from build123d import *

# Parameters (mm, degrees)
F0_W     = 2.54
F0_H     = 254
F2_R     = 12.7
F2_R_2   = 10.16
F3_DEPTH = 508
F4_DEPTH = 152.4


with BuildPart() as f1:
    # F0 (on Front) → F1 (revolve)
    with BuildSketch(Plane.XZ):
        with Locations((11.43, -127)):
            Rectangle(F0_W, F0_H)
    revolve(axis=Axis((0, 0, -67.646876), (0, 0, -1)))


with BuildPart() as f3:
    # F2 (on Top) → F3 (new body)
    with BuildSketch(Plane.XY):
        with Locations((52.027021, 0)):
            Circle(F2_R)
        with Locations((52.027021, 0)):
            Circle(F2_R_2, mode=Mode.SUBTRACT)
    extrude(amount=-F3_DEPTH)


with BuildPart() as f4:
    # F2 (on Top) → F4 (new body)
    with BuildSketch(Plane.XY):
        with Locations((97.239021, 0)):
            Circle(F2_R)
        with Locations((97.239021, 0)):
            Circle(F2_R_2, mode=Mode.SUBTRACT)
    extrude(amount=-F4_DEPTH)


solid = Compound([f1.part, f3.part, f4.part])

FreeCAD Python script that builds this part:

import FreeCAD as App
import Part
import Sketcher
Q = App.Units.Quantity

doc = App.newDocument("Part")
params = doc.addObject("Spreadsheet::Sheet", "Params")
for row, (alias, value) in enumerate([
    ("sketch1_height", "10 in"),
    ("sketch1_width", "0.1 in"),
    ("revolution_angle", "360 deg"),
    ("sketch2_diameter", "1 in"),
    ("sketch2_diameter2", "0.8 in"),
    ("pad1_length", "20 in"),
    ("sketch3_diameter", "1 in"),
    ("sketch3_diameter2", "0.8 in"),
    ("pad2_length", "6 in"),
], start=1):
    params.set(f"A{row}", alias)
    params.set(f"B{row}", "=" + value)
    params.setAlias(f"B{row}", alias)

body = doc.addObject("PartDesign::Body", "Body")

# Sketch on XZ plane
sketch1 = doc.addObject("Sketcher::SketchObject", "Sketch")
body.addObject(sketch1)
sketch1.AttachmentSupport = (doc.XZ_Plane, [""])
sketch1.MapMode = "FlatFace"
sketch1.addGeometry([
    Part.LineSegment(App.Vector(10.16, 0, 0), App.Vector(10.16, -254, 0)),
    Part.LineSegment(App.Vector(10.16, -254, 0), App.Vector(12.7, -254, 0)),
    Part.LineSegment(App.Vector(12.7, -254, 0), App.Vector(12.7, 0, 0)),
    Part.LineSegment(App.Vector(12.7, 0, 0), App.Vector(10.16, 0, 0)),
], False)
sketch1.addConstraint([
    Sketcher.Constraint("Coincident", 0, 2, 1, 1),
    Sketcher.Constraint("Coincident", 1, 2, 2, 1),
    Sketcher.Constraint("Coincident", 2, 2, 3, 1),
    Sketcher.Constraint("Coincident", 3, 2, 0, 1),
    Sketcher.Constraint("Vertical", 0),
    Sketcher.Constraint("Horizontal", 1),
    Sketcher.Constraint("Vertical", 2),
    Sketcher.Constraint("Horizontal", 3),
    Sketcher.Constraint("PointOnObject", 2, 2, -1),
    Sketcher.Constraint("DistanceY", 0, 2, 0, 1, Q("10 in")),
    Sketcher.Constraint("DistanceX", 1, 1, 1, 2, Q("0.1 in")),
    Sketcher.Constraint("DistanceX", -1, 1, 0, 2, Q("0.4 in")),
])
sketch1.setExpression("Constraints[9]", "Params.sketch1_height")
sketch1.setExpression("Constraints[10]", "Params.sketch1_width")
revolution = doc.addObject("PartDesign::Revolution", "Revolution")
body.addObject(revolution)
revolution.Profile = sketch1
revolution.ReferenceAxis = (sketch1, ["V_Axis"])
revolution.setExpression("Angle", "Params.revolution_angle")
body2 = doc.addObject("PartDesign::Body", "Body001")

# Sketch on XY plane
sketch2 = doc.addObject("Sketcher::SketchObject", "Sketch001")
body2.addObject(sketch2)
sketch2.AttachmentSupport = (doc.getObject("XY_Plane001"), [""])
sketch2.MapMode = "FlatFace"
sketch2.addGeometry([
    Part.Circle(App.Vector(52.027021, 0, 0), App.Vector(0, 0, 1), 12.7),
    Part.Circle(App.Vector(52.027021, 0, 0), App.Vector(0, 0, 1), 10.16),
], False)
sketch2.addConstraint([
    Sketcher.Constraint("Coincident", 1, 3, 0, 3),
    Sketcher.Constraint("PointOnObject", 0, 3, -1),
    Sketcher.Constraint("Diameter", 0, Q("1 in")),
    Sketcher.Constraint("Diameter", 1, Q("0.8 in")),
    Sketcher.Constraint("DistanceX", -1, 1, 0, 3, Q("52.027021 mm")),
])
sketch2.setExpression("Constraints[2]", "Params.sketch2_diameter")
sketch2.setExpression("Constraints[3]", "Params.sketch2_diameter2")
pad1 = doc.addObject("PartDesign::Pad", "Pad")
body2.addObject(pad1)
pad1.Profile = sketch2
pad1.setExpression("Length", "Params.pad1_length")
pad1.Reversed = True
body3 = doc.addObject("PartDesign::Body", "Body002")

# Sketch on XY plane
sketch3 = doc.addObject("Sketcher::SketchObject", "Sketch002")
body3.addObject(sketch3)
sketch3.AttachmentSupport = (doc.getObject("XY_Plane002"), [""])
sketch3.MapMode = "FlatFace"
sketch3.addGeometry([
    Part.Circle(App.Vector(97.239021, 0, 0), App.Vector(0, 0, 1), 12.7),
    Part.Circle(App.Vector(97.239021, 0, 0), App.Vector(0, 0, 1), 10.16),
], False)
sketch3.addConstraint([
    Sketcher.Constraint("Coincident", 1, 3, 0, 3),
    Sketcher.Constraint("PointOnObject", 0, 3, -1),
    Sketcher.Constraint("Diameter", 0, Q("1 in")),
    Sketcher.Constraint("Diameter", 1, Q("0.8 in")),
    Sketcher.Constraint("DistanceX", -1, 1, 0, 3, Q("97.239021 mm")),
])
sketch3.setExpression("Constraints[2]", "Params.sketch3_diameter")
sketch3.setExpression("Constraints[3]", "Params.sketch3_diameter2")
pad2 = doc.addObject("PartDesign::Pad", "Pad001")
body3.addObject(pad2)
pad2.Profile = sketch3
pad2.setExpression("Length", "Params.pad2_length")
pad2.Reversed = True

doc.recompute()
